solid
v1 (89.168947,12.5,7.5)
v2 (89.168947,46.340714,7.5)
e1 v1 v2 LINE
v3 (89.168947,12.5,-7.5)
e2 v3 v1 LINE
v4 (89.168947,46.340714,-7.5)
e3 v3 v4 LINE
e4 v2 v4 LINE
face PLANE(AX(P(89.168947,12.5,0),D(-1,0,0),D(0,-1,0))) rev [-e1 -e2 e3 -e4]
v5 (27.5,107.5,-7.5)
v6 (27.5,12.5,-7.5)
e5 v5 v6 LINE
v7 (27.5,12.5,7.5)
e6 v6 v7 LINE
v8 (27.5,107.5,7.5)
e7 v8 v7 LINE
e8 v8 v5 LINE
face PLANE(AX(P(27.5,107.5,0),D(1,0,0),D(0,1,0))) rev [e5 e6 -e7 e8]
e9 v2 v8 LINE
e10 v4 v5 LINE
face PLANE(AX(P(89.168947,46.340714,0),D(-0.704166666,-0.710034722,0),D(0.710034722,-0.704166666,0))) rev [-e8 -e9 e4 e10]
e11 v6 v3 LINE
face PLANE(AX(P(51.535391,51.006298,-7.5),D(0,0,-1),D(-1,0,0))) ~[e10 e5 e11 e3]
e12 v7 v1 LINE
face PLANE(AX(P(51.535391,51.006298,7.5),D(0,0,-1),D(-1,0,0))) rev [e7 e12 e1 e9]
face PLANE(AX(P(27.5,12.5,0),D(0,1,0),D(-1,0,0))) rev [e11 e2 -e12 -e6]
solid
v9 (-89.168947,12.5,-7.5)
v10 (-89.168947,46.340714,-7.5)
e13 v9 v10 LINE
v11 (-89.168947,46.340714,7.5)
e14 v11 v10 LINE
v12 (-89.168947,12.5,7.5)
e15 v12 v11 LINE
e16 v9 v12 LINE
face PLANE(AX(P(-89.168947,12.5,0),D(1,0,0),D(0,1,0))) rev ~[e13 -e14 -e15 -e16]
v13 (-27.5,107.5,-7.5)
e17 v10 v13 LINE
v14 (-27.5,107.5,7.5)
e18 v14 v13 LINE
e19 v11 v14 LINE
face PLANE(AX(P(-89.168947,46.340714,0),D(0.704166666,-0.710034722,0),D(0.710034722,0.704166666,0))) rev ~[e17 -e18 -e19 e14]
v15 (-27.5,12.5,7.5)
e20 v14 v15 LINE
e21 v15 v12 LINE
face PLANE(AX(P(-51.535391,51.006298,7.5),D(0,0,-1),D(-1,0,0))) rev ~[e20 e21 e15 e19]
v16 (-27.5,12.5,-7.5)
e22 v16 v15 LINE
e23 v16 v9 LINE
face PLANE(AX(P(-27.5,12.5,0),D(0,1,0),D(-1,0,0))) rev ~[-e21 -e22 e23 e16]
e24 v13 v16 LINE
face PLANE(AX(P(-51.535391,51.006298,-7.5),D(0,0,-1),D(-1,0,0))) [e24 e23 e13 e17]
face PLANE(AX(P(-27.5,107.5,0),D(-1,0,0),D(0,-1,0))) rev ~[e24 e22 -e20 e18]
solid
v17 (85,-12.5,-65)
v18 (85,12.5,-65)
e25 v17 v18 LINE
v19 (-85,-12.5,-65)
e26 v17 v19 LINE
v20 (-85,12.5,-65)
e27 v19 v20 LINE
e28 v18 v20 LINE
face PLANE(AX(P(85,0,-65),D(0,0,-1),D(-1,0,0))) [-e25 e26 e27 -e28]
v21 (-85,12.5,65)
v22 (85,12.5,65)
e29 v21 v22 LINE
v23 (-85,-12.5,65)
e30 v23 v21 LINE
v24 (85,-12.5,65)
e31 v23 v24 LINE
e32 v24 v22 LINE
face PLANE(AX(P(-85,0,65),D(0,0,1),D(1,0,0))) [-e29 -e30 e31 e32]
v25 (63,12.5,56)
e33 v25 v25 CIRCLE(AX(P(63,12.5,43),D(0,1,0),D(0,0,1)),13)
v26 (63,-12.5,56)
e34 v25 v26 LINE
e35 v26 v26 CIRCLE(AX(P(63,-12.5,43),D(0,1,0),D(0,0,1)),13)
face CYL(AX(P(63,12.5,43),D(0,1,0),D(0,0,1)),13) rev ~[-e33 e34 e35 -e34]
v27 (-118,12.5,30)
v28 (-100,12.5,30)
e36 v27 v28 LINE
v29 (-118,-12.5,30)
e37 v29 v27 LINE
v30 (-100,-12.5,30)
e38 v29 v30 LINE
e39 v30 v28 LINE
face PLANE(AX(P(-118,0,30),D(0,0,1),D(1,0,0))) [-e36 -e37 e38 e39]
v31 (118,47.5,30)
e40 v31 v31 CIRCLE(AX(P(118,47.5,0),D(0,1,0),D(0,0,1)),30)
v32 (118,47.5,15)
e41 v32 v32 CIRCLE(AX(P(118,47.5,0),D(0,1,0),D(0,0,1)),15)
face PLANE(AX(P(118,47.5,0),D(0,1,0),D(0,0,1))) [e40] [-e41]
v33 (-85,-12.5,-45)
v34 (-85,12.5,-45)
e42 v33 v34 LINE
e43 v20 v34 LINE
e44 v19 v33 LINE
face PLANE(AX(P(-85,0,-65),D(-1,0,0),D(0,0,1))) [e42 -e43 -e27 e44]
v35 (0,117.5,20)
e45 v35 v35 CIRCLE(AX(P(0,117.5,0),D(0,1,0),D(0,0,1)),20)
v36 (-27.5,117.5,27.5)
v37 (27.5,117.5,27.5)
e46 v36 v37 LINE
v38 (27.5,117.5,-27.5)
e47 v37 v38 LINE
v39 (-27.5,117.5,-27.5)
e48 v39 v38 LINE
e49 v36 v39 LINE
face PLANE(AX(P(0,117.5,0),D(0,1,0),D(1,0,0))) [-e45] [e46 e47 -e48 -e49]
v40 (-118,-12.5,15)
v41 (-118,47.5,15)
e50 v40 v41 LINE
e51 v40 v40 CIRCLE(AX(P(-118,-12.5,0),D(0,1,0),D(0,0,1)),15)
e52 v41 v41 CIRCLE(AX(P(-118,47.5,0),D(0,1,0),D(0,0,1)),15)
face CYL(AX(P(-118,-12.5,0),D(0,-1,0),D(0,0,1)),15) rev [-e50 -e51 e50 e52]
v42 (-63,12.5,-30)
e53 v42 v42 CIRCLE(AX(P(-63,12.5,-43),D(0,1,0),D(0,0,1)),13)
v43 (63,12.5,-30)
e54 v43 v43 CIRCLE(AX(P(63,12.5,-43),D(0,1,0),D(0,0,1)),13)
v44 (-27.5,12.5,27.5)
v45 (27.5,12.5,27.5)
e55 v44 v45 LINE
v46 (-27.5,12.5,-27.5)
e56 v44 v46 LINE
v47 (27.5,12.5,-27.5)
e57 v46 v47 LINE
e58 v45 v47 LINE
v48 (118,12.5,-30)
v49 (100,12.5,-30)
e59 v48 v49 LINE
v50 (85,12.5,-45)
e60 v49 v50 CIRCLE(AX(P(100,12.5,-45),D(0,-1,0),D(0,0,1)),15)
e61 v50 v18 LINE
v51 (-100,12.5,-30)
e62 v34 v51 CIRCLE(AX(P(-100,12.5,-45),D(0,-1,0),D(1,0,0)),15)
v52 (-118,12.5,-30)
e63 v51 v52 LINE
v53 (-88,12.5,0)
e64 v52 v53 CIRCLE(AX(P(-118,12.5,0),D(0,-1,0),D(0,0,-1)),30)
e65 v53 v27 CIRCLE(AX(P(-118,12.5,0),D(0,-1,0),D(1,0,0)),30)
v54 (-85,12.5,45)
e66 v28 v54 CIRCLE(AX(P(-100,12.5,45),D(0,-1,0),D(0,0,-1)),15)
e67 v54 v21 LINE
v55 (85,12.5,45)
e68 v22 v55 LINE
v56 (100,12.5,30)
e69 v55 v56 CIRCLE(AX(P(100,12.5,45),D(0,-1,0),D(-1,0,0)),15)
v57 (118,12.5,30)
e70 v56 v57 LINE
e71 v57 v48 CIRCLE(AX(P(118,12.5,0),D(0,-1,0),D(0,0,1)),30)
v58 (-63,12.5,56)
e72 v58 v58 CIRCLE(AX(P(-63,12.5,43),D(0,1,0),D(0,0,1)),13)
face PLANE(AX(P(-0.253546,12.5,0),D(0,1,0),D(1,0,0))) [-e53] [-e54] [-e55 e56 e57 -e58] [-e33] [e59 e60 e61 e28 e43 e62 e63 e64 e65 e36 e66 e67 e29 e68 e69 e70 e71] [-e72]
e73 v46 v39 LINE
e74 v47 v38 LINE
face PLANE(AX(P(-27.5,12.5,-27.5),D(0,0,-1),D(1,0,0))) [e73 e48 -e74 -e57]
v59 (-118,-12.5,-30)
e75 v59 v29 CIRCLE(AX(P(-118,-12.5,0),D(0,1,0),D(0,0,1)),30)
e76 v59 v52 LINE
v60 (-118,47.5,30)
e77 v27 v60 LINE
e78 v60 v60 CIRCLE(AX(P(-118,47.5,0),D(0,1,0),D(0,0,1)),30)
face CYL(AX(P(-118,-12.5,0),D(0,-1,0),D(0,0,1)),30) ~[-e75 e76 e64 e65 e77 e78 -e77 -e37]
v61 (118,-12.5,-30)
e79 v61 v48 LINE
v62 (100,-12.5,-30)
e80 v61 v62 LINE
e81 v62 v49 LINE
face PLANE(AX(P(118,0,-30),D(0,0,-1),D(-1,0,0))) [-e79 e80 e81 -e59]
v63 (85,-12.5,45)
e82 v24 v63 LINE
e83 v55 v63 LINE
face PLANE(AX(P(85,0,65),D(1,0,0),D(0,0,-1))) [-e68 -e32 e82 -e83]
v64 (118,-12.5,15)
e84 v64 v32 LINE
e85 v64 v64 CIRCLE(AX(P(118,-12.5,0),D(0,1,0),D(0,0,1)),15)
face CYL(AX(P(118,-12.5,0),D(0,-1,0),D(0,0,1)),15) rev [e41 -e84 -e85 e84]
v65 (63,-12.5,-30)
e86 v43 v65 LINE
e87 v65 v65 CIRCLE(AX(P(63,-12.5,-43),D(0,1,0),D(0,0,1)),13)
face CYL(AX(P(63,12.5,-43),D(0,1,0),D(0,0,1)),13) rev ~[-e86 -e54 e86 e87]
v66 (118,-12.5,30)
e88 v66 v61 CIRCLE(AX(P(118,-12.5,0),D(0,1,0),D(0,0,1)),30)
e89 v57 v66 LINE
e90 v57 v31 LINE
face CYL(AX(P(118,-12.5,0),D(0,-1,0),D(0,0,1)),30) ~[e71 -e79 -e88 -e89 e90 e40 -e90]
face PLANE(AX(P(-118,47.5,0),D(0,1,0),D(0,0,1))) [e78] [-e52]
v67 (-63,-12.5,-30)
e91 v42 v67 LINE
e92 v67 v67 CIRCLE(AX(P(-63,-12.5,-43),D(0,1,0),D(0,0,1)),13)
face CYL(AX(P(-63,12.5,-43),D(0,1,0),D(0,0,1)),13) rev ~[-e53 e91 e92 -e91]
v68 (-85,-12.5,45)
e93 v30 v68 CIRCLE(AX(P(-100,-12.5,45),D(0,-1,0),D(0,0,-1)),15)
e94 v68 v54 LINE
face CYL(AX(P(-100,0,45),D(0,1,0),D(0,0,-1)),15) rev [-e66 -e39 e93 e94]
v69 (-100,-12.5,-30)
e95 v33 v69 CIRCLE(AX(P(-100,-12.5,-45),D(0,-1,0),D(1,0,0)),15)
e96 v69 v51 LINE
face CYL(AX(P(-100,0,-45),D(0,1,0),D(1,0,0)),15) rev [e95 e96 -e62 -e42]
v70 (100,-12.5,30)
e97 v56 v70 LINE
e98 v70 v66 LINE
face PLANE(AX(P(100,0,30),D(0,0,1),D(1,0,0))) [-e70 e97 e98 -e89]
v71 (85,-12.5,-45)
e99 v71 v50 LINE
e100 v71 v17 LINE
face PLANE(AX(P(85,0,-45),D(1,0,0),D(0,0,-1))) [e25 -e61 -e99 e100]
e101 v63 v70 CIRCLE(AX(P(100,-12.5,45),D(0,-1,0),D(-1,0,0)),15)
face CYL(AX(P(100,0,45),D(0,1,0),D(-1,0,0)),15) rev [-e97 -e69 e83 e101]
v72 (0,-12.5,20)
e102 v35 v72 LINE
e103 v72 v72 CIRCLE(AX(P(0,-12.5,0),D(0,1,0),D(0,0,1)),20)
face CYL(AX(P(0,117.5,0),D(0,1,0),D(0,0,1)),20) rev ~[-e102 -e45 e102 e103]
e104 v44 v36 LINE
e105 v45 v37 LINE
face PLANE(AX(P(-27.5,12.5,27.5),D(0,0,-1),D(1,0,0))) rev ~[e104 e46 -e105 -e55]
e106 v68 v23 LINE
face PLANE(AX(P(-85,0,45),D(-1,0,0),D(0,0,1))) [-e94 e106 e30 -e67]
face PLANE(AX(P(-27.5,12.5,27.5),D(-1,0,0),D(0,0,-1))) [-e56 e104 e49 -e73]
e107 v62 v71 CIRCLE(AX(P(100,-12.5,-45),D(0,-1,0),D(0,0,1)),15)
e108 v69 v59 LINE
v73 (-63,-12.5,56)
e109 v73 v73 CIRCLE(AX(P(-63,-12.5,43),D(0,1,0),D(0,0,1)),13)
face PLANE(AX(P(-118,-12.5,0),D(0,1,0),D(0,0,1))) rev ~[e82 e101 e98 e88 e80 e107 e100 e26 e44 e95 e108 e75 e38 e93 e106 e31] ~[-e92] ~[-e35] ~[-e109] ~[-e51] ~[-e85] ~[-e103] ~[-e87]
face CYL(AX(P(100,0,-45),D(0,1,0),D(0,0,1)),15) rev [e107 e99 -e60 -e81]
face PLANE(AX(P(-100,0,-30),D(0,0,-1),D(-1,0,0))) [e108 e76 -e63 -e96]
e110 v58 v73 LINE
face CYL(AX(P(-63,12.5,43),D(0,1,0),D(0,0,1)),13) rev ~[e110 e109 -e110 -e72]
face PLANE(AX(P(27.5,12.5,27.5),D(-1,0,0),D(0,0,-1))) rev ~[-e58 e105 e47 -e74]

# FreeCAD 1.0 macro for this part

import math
import FreeCAD as App
import Part
import Sketcher

V = App.Vector


def add_polygon(sketch, points):
    """Adds a closed chain of lines whose ends are joined by coincident constraints."""
    first, n = sketch.GeometryCount, len(points)
    for a, b in zip(points, points[1:] + points[:1]):
        sketch.addGeometry(Part.LineSegment(App.Vector(*a, 0), App.Vector(*b, 0)), False)
    for i in range(n):
        sketch.addConstraint(Sketcher.Constraint("Coincident", first + i, 2, first + (i + 1) % n, 1))

doc = App.newDocument("Part")
body = doc.addObject("PartDesign::Body", "Body")

sketch1 = body.newObject("Sketcher::SketchObject", "Sketch")
sketch1.AttachmentSupport = (doc.getObject("XZ_Plane"), [""])
sketch1.MapMode = "FlatFace"
sketch1.addGeometry(Part.ArcOfCircle(Part.Circle(V(118, 0, 0), V(0, 0, 1), 30), math.radians(90), math.radians(270)), False)
sketch1.addGeometry(Part.LineSegment(V(118, -30, 0), V(100, -30, 0)), False)
sketch1.addGeometry(Part.ArcOfCircle(Part.Circle(V(100, -45, 0), V(0, 0, 1), 15), math.radians(90), math.radians(180)), False)
sketch1.addGeometry(Part.LineSegment(V(85, -45, 0), V(85, -65, 0)), False)
sketch1.addGeometry(Part.LineSegment(V(85, -65, 0), V(-85, -65, 0)), False)
sketch1.addGeometry(Part.LineSegment(V(-85, -65, 0), V(-85, -45, 0)), False)
sketch1.addGeometry(Part.ArcOfCircle(Part.Circle(V(-100, -45, 0), V(0, 0, 1), 15), math.radians(0), math.radians(90)), False)
sketch1.addGeometry(Part.LineSegment(V(-100, -30, 0), V(-118, -30, 0)), False)
sketch1.addGeometry(Part.ArcOfCircle(Part.Circle(V(-118, 0, 0), V(0, 0, 1), 30), math.radians(-90), math.radians(0)), False)
sketch1.addGeometry(Part.ArcOfCircle(Part.Circle(V(-118, 0, 0), V(0, 0, 1), 30), math.radians(0), math.radians(90)), False)
sketch1.addGeometry(Part.LineSegment(V(-118, 30, 0), V(-100, 30, 0)), False)
sketch1.addGeometry(Part.ArcOfCircle(Part.Circle(V(-100, 45, 0), V(0, 0, 1), 15), math.radians(-90), math.radians(0)), False)
sketch1.addGeometry(Part.LineSegment(V(-85, 45, 0), V(-85, 65, 0)), False)
sketch1.addGeometry(Part.LineSegment(V(-85, 65, 0), V(85, 65, 0)), False)
sketch1.addGeometry(Part.LineSegment(V(85, 65, 0), V(85, 45, 0)), False)
sketch1.addGeometry(Part.ArcOfCircle(Part.Circle(V(100, 45, 0), V(0, 0, 1), 15), math.radians(180), math.radians(270)), False)
sketch1.addGeometry(Part.LineSegment(V(100, 30, 0), V(118, 30, 0)), False)
sketch1.addConstraint(Sketcher.Constraint("Tangent", 0, 2, 1, 1))
sketch1.addConstraint(Sketcher.Constraint("Tangent", 1, 2, 2, 1))
sketch1.addConstraint(Sketcher.Constraint("Tangent", 2, 2, 3, 1))
sketch1.addConstraint(Sketcher.Constraint("Coincident", 3, 2, 4, 1))
sketch1.addConstraint(Sketcher.Constraint("Coincident", 4, 2, 5, 1))
sketch1.addConstraint(Sketcher.Constraint("Tangent", 5, 2, 6, 1))
sketch1.addConstraint(Sketcher.Constraint("Tangent", 6, 2, 7, 1))
sketch1.addConstraint(Sketcher.Constraint("Tangent", 7, 2, 8, 1))
sketch1.addConstraint(Sketcher.Constraint("Tangent", 8, 2, 9, 1))
sketch1.addConstraint(Sketcher.Constraint("Tangent", 9, 2, 10, 1))
sketch1.addConstraint(Sketcher.Constraint("Tangent", 10, 2, 11, 1))
sketch1.addConstraint(Sketcher.Constraint("Tangent", 11, 2, 12, 1))
sketch1.addConstraint(Sketcher.Constraint("Coincident", 12, 2, 13, 1))
sketch1.addConstraint(Sketcher.Constraint("Coincident", 13, 2, 14, 1))
sketch1.addConstraint(Sketcher.Constraint("Tangent", 14, 2, 15, 1))
sketch1.addConstraint(Sketcher.Constraint("Tangent", 15, 2, 16, 1))
sketch1.addConstraint(Sketcher.Constraint("Tangent", 16, 2, 0, 1))
sketch1.addConstraint(Sketcher.Constraint("Horizontal", 1))
sketch1.addConstraint(Sketcher.Constraint("Vertical", 3))
sketch1.addConstraint(Sketcher.Constraint("Horizontal", 4))
sketch1.addConstraint(Sketcher.Constraint("Vertical", 5))
sketch1.addConstraint(Sketcher.Constraint("Horizontal", 7))
sketch1.addConstraint(Sketcher.Constraint("Horizontal", 10))
sketch1.addConstraint(Sketcher.Constraint("Vertical", 12))
sketch1.addConstraint(Sketcher.Constraint("Horizontal", 13))
sketch1.addConstraint(Sketcher.Constraint("Vertical", 14))
sketch1.addConstraint(Sketcher.Constraint("Horizontal", 16))
sketch1.addConstraint(Sketcher.Constraint("Equal", 2, 6))
sketch1.addConstraint(Sketcher.Constraint("Equal", 0, 8))
sketch1.addConstraint(Sketcher.Constraint("Equal", 8, 9))
sketch1.addConstraint(Sketcher.Constraint("Equal", 6, 11))
sketch1.addConstraint(Sketcher.Constraint("Equal", 11, 15))
sketch1.addConstraint(Sketcher.Constraint("Symmetric", 0, 3, 8, 3, -1, 1))
sketch1.addConstraint(Sketcher.Constraint("Symmetric", 3, 2, 12, 2, -1, 1))
sketch1.addConstraint(Sketcher.Constraint("Symmetric", 2, 3, 6, 3, -2))
sketch1.addConstraint(Sketcher.Constraint("PointOnObject", 8, 2, -1))
sketch1.addConstraint(Sketcher.Constraint("Vertical", 2, 3, 15, 3))
sketch1.addConstraint(Sketcher.Constraint("Radius", 0, 30.0))
sketch1.addConstraint(Sketcher.Constraint("Radius", 2, 15.0))
sketch1.addConstraint(Sketcher.Constraint("DistanceX", 1, 2, 1, 1, 18.0))
sketch1.addConstraint(Sketcher.Constraint("DistanceX", 4, 2, 4, 1, 170.0))
sketch1.addConstraint(Sketcher.Constraint("DistanceY", 3, 2, 3, 1, 20.0))
pad1 = body.newObject("PartDesign::Pad", "Pad")
pad1.Profile = sketch1
pad1.Length = 25
pad1.Midplane = True

sketch2 = body.newObject("Sketcher::SketchObject", "Sketch001")
sketch2.AttachmentSupport = (doc.getObject("XZ_Plane"), [""])
sketch2.MapMode = "FlatFace"
sketch2.addGeometry(Part.Circle(V(-118, 0, 0), V(0, 0, 1), 30), False)
sketch2.addGeometry(Part.Circle(V(-118, 0, 0), V(0, 0, 1), 15), False)
sketch2.addGeometry(Part.Circle(V(118, 0, 0), V(0, 0, 1), 30), False)
sketch2.addGeometry(Part.Circle(V(118, 0, 0), V(0, 0, 1), 15), False)
sketch2.addConstraint(Sketcher.Constraint("Coincident", 1, 3, 0, 3))
sketch2.addConstraint(Sketcher.Constraint("Coincident", 3, 3, 2, 3))
sketch2.addConstraint(Sketcher.Constraint("Equal", 0, 2))
sketch2.addConstraint(Sketcher.Constraint("Equal", 1, 3))
sketch2.addConstraint(Sketcher.Constraint("Symmetric", 0, 3, 2, 3, -1, 1))
sketch2.addConstraint(Sketcher.Constraint("PointOnObject", 0, 3, -1))
sketch2.addConstraint(Sketcher.Constraint("Diameter", 0, 60.0))
sketch2.addConstraint(Sketcher.Constraint("Diameter", 1, 30.0))
sketch2.addConstraint(Sketcher.Constraint("DistanceX", 0, 3, -1, 1, 118.0))
pad2 = body.newObject("PartDesign::Pad", "Pad001")
pad2.Profile = sketch2
pad2.Type = "TwoLengths"
pad2.Length = 47.5
pad2.Length2 = 12.5
pad2.Reversed = True

sketch3 = body.newObject("Sketcher::SketchObject", "Sketch002")
sketch3.AttachmentSupport = (doc.getObject("XZ_Plane"), [""])
sketch3.MapMode = "FlatFace"
sketch3.AttachmentOffset = App.Placement(V(0, 0, -12.5), App.Rotation())
sketch3.addGeometry(Part.Circle(V(-63, -43, 0), V(0, 0, 1), 13), False)
sketch3.addConstraint(Sketcher.Constraint("Diameter", 0, 26.0))
sketch3.addConstraint(Sketcher.Constraint("DistanceX", 0, 3, -1, 1, 63.0))
sketch3.addConstraint(Sketcher.Constraint("DistanceY", 0, 3, -1, 1, 43.0))
pocket1 = body.newObject("PartDesign::Pocket", "Pocket")
pocket1.Profile = sketch3
pocket1.Type = "UpToFirst"
pocket1.Reversed = True

sketch4 = body.newObject("Sketcher::SketchObject", "Sketch003")
sketch4.AttachmentSupport = (doc.getObject("XZ_Plane"), [""])
sketch4.MapMode = "FlatFace"
sketch4.AttachmentOffset = App.Placement(V(0, 0, -12.5), App.Rotation())
sketch4.addGeometry(Part.Circle(V(-63, 43, 0), V(0, 0, 1), 13), False)
sketch4.addConstraint(Sketcher.Constraint("Diameter", 0, 26.0))
sketch4.addConstraint(Sketcher.Constraint("DistanceX", 0, 3, -1, 1, 63.0))
sketch4.addConstraint(Sketcher.Constraint("DistanceY", -1, 1, 0, 3, 43.0))
pocket2 = body.newObject("PartDesign::Pocket", "Pocket001")
pocket2.Profile = sketch4
pocket2.Type = "UpToFirst"
pocket2.Reversed = True

sketch5 = body.newObject("Sketcher::SketchObject", "Sketch004")
sketch5.AttachmentSupport = (doc.getObject("XZ_Plane"), [""])
sketch5.MapMode = "FlatFace"
sketch5.AttachmentOffset = App.Placement(V(0, 0, -12.5), App.Rotation())
sketch5.addGeometry(Part.Circle(V(63, -43, 0), V(0, 0, 1), 13), False)
sketch5.addConstraint(Sketcher.Constraint("Diameter", 0, 26.0))
sketch5.addConstraint(Sketcher.Constraint("DistanceX", -1, 1, 0, 3, 63.0))
sketch5.addConstraint(Sketcher.Constraint("DistanceY", 0, 3, -1, 1, 43.0))
pocket3 = body.newObject("PartDesign::Pocket", "Pocket002")
pocket3.Profile = sketch5
pocket3.Type = "UpToFirst"
pocket3.Reversed = True

sketch6 = body.newObject("Sketcher::SketchObject", "Sketch005")
sketch6.AttachmentSupport = (doc.getObject("XZ_Plane"), [""])
sketch6.MapMode = "FlatFace"
sketch6.AttachmentOffset = App.Placement(V(0, 0, -12.5), App.Rotation())
sketch6.addGeometry(Part.Circle(V(63, 43, 0), V(0, 0, 1), 13), False)
sketch6.addConstraint(Sketcher.Constraint("Diameter", 0, 26.0))
sketch6.addConstraint(Sketcher.Constraint("DistanceX", -1, 1, 0, 3, 63.0))
sketch6.addConstraint(Sketcher.Constraint("DistanceY", -1, 1, 0, 3, 43.0))
pocket4 = body.newObject("PartDesign::Pocket", "Pocket003")
pocket4.Profile = sketch6
pocket4.Type = "UpToFirst"
pocket4.Reversed = True

sketch7 = body.newObject("Sketcher::SketchObject", "Sketch006")
sketch7.AttachmentSupport = (doc.getObject("XZ_Plane"), [""])
sketch7.MapMode = "FlatFace"
sketch7.AttachmentOffset = App.Placement(V(0, 0, -12.5), App.Rotation())
add_polygon(sketch7, [(-27.5, -27.5), (-27.5, 27.5), (27.5, 27.5), (27.5, -27.5)])
sketch7.addConstraint(Sketcher.Constraint("Vertical", 0))
sketch7.addConstraint(Sketcher.Constraint("Horizontal", 1))
sketch7.addConstraint(Sketcher.Constraint("Vertical", 2))
sketch7.addConstraint(Sketcher.Constraint("Horizontal", 3))
sketch7.addConstraint(Sketcher.Constraint("Symmetric", 0, 2, 2, 2, -1, 1))
sketch7.addConstraint(Sketcher.Constraint("Equal", 3, 0))
sketch7.addConstraint(Sketcher.Constraint("DistanceX", 1, 1, 1, 2, 55.0))
pad3 = body.newObject("PartDesign::Pad", "Pad002")
pad3.Profile = sketch7
pad3.Length = 105
pad3.Reversed = True

sketch8 = body.newObject("Sketcher::SketchObject", "Sketch007")
sketch8.AttachmentSupport = (doc.getObject("XZ_Plane"), [""])
sketch8.MapMode = "FlatFace"
sketch8.AttachmentOffset = App.Placement(V(0, 0, -117.5), App.Rotation())
sketch8.addGeometry(Part.Circle(V(0, 0, 0), V(0, 0, 1), 20), False)
sketch8.addConstraint(Sketcher.Constraint("Coincident", 0, 3, -1, 1))
sketch8.addConstraint(Sketcher.Constraint("Diameter", 0, 40.0))
pocket5 = body.newObject("PartDesign::Pocket", "Pocket004")
pocket5.Profile = sketch8
pocket5.Type = "UpToFirst"
pocket5.Reversed = True
body2 = doc.addObject("PartDesign::Body", "Body001")

sketch9 = body2.newObject("Sketcher::SketchObject", "Sketch008")
sketch9.AttachmentSupport = (doc.getObject("XY_Plane001"), [""])
sketch9.MapMode = "FlatFace"
add_polygon(sketch9, [(-89.168947, 46.340714), (-89.168947, 12.5), (-27.5, 12.5), (-27.5, 107.5)])
sketch9.addConstraint(Sketcher.Constraint("Vertical", 0))
sketch9.addConstraint(Sketcher.Constraint("Horizontal", 1))
sketch9.addConstraint(Sketcher.Constraint("Vertical", 2))
sketch9.addConstraint(Sketcher.Constraint("DistanceY", 2, 1, 2, 2, 95.0))
sketch9.addConstraint(Sketcher.Constraint("DistanceY", -1, 1, 0, 2, 12.5))
sketch9.addConstraint(Sketcher.Constraint("DistanceX", 1, 2, -1, 1, 27.5))
sketch9.addConstraint(Sketcher.Constraint("DistanceX", 1, 1, 1, 2, 61.668947))
sketch9.addConstraint(Sketcher.Constraint("DistanceY", 0, 2, 0, 1, 33.840714))
pad4 = body2.newObject("PartDesign::Pad", "Pad003")
pad4.Profile = sketch9
pad4.Length = 15
pad4.Midplane = True
body3 = doc.addObject("PartDesign::Body", "Body002")
doc.recompute()

mirroring = doc.addObject("Part::Mirroring", "Mirroring")
mirroring.Source = body2
mirroring.Base = V(0, 0, 0)
mirroring.Normal = V(1, 0, 0)
body3.BaseFeature = mirroring
doc.recompute()
mirroring.Visibility = False

doc.recompute()
